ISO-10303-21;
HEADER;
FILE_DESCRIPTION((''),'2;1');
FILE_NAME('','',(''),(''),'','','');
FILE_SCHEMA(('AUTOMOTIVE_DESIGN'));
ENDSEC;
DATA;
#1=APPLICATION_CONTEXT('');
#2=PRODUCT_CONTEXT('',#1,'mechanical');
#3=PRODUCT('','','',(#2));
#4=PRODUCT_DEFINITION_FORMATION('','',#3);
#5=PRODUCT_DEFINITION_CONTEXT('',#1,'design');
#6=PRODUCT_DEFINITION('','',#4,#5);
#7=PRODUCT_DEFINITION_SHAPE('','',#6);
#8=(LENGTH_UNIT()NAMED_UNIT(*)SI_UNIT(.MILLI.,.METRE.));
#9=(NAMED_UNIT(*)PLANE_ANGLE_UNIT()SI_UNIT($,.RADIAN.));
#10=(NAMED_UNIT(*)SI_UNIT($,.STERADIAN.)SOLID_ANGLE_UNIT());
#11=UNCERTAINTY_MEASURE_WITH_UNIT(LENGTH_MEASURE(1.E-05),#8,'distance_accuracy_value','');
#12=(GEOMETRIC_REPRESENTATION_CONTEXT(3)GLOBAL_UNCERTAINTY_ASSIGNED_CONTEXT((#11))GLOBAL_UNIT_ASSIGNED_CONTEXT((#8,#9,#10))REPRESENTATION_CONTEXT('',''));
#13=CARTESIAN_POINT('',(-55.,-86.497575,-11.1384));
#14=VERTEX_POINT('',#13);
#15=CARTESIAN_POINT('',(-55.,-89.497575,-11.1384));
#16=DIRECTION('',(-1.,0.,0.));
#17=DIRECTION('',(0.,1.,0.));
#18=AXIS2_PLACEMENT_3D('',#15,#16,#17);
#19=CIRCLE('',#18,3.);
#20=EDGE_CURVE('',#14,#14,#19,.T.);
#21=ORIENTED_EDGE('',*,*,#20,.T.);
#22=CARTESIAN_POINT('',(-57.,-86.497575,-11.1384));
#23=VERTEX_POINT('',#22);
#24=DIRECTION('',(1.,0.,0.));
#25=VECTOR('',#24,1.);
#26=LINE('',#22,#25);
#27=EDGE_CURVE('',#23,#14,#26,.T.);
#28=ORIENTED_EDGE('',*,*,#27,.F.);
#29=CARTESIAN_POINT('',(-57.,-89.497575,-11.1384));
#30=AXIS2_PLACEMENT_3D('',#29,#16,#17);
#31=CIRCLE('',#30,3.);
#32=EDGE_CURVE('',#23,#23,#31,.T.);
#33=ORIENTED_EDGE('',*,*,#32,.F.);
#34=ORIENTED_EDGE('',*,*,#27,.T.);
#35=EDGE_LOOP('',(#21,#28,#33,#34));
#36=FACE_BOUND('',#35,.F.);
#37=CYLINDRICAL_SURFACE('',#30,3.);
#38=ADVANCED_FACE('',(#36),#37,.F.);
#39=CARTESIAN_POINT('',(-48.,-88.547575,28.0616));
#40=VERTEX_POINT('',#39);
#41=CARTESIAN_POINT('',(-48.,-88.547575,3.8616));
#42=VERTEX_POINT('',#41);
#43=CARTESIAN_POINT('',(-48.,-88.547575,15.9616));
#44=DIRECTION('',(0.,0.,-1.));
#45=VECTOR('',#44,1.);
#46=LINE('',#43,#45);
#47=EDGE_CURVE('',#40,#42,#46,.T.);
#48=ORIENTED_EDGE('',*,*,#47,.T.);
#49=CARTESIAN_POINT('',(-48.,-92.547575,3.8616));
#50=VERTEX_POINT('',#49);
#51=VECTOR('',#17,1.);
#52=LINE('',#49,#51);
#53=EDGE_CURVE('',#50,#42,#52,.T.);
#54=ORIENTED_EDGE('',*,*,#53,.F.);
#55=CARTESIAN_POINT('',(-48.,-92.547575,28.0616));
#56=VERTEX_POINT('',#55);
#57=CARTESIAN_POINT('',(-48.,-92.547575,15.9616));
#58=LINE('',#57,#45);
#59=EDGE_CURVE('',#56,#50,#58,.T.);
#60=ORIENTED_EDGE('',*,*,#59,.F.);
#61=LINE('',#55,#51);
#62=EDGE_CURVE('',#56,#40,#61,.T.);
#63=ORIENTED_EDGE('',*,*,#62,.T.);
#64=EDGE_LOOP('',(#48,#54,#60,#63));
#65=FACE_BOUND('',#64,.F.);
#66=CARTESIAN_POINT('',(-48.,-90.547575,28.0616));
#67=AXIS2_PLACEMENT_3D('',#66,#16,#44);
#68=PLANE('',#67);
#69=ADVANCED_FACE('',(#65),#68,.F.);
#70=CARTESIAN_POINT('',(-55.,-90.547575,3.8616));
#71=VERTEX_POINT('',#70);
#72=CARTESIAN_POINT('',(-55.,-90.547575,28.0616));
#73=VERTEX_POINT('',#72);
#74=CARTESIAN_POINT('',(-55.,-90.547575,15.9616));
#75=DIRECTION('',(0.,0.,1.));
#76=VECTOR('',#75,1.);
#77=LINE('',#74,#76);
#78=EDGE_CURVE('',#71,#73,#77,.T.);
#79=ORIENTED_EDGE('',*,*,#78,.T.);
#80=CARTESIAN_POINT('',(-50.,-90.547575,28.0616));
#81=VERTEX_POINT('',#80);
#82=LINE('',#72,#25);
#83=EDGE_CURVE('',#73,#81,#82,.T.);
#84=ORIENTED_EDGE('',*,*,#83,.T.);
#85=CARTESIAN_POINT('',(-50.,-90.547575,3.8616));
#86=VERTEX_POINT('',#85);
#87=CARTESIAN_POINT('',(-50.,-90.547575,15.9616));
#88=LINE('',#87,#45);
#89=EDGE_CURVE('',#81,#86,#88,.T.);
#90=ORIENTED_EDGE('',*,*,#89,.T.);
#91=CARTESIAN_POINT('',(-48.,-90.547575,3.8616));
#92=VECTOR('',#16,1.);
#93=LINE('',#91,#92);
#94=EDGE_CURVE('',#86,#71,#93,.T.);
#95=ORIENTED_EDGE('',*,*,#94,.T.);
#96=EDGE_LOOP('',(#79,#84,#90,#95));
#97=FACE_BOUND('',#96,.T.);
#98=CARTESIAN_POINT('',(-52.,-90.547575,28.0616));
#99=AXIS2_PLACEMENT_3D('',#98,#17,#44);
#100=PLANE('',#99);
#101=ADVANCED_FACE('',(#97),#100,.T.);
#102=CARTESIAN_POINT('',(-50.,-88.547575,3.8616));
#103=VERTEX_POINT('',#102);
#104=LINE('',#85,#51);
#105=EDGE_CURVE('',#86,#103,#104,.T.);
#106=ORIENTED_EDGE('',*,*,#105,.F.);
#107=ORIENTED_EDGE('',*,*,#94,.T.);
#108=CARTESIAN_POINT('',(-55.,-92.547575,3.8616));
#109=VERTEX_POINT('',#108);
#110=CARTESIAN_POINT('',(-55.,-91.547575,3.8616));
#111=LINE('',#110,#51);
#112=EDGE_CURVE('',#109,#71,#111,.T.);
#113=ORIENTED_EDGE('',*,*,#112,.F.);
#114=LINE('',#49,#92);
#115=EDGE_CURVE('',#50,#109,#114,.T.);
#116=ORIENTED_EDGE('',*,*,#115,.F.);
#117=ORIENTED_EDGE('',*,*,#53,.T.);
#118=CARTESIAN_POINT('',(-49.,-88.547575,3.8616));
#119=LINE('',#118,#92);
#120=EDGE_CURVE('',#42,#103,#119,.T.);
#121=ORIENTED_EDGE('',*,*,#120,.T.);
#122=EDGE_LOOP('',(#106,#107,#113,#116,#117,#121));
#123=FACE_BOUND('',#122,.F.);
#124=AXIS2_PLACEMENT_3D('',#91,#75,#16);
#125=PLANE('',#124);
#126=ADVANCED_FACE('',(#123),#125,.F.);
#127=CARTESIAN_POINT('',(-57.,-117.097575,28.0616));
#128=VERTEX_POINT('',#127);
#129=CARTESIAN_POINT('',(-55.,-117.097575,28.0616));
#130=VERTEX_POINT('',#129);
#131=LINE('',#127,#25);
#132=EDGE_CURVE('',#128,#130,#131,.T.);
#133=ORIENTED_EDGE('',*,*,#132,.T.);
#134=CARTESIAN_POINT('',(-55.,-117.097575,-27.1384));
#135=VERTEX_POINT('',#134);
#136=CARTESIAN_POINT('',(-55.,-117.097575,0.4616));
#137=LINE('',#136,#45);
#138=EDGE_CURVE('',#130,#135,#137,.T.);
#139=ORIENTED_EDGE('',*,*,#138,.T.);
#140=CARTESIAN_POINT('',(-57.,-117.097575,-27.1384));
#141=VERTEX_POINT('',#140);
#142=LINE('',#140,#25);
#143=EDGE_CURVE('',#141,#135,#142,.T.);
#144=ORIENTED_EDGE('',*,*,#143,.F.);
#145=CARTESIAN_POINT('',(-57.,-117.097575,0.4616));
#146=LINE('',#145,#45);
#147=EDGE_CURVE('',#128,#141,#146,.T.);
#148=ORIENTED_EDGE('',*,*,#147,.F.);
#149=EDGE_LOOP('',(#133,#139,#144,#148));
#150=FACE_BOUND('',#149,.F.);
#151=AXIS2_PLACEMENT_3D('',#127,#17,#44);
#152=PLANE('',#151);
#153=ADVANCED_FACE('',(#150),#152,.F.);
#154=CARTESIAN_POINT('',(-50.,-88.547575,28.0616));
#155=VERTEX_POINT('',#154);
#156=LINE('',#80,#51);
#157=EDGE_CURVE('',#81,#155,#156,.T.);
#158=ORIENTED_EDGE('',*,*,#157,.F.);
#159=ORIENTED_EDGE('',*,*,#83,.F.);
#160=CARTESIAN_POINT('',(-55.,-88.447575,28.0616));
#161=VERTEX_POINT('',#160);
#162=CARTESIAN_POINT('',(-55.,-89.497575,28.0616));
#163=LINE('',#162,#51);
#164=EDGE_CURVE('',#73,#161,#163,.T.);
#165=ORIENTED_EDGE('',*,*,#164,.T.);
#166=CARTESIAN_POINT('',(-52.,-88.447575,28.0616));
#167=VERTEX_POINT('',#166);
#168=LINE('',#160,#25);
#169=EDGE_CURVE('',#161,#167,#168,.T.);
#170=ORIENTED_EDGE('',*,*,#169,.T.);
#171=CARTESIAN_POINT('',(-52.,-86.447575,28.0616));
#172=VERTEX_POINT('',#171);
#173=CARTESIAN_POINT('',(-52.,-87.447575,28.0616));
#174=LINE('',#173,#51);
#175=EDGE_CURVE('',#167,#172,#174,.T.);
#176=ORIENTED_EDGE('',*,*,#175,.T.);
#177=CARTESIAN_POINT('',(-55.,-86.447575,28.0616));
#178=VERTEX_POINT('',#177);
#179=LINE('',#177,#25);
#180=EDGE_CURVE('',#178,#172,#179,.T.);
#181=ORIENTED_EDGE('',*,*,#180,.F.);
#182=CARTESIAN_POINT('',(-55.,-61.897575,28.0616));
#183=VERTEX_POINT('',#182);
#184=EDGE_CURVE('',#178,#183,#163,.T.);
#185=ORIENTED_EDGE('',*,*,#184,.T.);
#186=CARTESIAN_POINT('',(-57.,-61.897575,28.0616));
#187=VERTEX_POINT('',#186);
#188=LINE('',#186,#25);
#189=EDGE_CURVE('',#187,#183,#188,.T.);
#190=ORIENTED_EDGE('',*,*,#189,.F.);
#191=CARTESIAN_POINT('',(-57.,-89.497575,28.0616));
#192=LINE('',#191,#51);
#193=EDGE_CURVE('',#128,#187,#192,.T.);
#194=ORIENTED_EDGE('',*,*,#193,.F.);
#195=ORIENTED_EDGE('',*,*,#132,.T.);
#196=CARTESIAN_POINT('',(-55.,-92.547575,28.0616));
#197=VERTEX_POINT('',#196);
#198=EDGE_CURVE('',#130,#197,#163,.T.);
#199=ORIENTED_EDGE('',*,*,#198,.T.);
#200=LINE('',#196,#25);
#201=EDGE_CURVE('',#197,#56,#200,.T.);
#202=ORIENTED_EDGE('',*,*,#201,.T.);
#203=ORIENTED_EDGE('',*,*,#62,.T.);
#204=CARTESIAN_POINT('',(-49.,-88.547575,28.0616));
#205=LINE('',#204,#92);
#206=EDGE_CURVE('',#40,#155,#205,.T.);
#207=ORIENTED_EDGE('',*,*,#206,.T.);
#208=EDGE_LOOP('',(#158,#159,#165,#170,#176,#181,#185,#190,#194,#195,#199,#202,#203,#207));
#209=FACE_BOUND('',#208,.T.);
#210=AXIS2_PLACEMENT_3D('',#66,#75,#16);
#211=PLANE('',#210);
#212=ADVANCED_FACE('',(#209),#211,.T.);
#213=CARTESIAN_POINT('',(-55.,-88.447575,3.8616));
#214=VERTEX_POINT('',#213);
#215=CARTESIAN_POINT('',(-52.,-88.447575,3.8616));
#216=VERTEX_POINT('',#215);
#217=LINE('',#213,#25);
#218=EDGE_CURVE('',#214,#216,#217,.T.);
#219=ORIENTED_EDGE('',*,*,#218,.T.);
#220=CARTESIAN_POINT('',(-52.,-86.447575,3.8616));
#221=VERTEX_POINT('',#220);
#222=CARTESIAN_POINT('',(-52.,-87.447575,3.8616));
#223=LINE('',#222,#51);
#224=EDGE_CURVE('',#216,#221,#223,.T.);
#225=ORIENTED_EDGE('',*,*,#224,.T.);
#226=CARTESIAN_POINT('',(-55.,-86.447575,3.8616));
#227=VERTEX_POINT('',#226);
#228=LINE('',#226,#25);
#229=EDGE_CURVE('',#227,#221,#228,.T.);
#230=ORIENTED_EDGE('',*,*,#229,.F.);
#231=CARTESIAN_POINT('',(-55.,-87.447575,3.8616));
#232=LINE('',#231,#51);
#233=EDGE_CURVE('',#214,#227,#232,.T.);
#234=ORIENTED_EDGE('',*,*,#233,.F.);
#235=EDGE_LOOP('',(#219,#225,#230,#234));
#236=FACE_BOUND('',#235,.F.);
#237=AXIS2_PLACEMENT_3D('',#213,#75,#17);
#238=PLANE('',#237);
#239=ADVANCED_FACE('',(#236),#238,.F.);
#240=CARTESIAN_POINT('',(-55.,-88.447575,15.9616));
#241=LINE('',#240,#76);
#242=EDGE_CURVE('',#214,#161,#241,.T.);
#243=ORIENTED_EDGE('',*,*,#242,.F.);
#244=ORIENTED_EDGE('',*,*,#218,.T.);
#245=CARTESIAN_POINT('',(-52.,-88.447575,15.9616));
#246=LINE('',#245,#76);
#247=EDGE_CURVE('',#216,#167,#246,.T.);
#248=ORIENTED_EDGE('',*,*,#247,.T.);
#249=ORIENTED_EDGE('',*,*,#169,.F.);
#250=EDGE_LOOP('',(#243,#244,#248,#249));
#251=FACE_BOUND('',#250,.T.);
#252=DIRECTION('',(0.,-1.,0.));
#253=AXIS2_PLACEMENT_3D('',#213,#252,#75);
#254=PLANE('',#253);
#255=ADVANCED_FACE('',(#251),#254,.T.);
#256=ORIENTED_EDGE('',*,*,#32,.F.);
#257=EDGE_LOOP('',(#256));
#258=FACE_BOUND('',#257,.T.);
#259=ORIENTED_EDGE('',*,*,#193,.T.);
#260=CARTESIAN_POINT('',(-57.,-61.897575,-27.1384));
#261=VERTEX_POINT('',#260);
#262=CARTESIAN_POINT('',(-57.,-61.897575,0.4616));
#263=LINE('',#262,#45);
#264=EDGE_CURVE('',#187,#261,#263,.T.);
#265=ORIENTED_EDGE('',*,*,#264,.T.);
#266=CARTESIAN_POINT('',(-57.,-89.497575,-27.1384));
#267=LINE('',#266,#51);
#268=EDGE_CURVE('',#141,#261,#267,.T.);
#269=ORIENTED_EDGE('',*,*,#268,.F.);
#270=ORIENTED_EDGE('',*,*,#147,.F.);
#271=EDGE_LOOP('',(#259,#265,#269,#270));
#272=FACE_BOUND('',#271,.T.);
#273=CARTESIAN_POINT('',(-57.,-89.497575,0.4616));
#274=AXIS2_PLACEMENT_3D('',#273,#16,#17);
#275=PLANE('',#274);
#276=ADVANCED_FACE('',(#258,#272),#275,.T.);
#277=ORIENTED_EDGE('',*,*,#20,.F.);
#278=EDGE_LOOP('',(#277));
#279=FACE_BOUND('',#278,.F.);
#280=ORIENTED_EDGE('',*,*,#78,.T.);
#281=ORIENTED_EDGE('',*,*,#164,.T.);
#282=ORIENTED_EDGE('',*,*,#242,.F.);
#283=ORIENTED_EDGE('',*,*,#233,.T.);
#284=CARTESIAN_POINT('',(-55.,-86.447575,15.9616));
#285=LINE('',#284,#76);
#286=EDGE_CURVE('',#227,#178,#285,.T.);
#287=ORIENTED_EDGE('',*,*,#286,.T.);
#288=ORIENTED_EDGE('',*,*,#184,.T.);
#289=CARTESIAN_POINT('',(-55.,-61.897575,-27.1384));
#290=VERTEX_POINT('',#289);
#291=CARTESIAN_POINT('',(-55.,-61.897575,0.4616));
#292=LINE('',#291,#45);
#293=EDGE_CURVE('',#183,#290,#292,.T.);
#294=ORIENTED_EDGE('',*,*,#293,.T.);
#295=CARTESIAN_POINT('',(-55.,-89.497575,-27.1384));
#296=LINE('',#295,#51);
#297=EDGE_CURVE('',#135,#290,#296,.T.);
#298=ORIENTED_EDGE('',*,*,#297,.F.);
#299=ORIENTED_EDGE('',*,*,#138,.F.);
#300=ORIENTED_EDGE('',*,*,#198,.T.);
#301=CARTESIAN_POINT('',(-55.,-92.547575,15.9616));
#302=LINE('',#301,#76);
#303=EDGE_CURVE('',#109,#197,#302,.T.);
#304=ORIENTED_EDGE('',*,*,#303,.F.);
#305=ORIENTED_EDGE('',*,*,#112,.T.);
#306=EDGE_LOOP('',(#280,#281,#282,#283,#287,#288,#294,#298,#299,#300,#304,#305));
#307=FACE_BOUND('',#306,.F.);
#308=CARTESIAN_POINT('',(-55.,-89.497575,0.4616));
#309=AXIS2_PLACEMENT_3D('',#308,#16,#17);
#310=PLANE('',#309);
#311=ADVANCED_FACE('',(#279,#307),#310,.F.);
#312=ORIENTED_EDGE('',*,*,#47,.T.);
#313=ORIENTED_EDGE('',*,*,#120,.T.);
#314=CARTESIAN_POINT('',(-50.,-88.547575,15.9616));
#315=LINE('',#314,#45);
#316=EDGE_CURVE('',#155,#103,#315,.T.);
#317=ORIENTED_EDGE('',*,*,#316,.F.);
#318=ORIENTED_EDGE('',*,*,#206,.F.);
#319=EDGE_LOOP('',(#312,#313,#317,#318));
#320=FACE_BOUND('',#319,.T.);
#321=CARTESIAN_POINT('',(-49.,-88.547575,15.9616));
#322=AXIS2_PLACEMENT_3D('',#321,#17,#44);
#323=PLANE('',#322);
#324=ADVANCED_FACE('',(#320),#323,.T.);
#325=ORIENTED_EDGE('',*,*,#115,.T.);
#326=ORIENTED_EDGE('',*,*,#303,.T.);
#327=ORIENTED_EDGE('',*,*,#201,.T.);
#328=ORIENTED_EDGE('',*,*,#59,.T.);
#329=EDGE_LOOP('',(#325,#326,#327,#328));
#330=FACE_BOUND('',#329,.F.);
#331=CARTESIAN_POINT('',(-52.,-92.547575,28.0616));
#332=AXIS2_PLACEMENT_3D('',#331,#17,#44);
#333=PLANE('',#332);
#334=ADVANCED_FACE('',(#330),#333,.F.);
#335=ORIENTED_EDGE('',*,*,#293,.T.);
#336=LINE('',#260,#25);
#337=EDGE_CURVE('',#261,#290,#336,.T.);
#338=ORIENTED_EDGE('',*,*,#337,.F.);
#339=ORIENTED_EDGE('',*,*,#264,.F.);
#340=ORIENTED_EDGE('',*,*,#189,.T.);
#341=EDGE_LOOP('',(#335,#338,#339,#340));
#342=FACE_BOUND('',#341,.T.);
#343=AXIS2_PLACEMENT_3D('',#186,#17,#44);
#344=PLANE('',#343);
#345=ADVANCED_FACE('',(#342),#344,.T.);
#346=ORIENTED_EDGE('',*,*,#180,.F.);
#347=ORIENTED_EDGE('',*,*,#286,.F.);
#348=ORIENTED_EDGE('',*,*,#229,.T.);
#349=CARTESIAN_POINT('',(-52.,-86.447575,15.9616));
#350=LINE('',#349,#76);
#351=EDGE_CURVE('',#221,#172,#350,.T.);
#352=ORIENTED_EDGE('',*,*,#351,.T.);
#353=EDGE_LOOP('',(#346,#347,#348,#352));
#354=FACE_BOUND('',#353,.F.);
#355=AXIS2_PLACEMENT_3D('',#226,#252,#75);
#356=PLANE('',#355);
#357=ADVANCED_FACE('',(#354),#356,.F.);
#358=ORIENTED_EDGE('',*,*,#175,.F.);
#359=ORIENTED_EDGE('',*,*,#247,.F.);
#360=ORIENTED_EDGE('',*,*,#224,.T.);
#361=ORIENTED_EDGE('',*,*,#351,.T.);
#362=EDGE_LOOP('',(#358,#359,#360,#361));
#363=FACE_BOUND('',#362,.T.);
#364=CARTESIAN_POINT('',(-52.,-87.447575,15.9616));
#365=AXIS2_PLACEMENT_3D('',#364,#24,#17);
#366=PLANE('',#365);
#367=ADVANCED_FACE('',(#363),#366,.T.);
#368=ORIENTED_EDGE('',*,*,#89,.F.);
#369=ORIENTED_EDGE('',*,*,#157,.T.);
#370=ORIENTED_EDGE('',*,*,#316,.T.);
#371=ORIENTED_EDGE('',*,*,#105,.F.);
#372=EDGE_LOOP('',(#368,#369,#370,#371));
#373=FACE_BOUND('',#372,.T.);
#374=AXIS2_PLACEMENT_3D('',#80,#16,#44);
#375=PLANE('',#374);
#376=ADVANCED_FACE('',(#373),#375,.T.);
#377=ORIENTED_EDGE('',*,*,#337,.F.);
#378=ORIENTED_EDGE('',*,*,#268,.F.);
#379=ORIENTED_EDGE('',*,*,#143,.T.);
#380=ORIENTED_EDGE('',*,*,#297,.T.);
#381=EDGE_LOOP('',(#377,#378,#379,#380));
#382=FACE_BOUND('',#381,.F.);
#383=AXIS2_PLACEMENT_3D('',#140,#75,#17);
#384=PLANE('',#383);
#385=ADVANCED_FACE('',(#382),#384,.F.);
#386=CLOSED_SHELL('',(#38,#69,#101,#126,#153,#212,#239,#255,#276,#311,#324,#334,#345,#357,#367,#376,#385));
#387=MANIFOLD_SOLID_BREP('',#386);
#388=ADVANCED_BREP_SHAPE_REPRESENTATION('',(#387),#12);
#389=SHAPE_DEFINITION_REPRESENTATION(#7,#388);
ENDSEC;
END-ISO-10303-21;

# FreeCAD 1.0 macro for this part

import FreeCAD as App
import Part
import Sketcher

V = App.Vector
Q = App.Units.Quantity

doc = App.newDocument("Part")
body = doc.addObject("PartDesign::Body", "Body")

# Sketch on YZ plane
sketch1 = doc.addObject("Sketcher::SketchObject", "Sketch")
body.addObject(sketch1)
sketch1.AttachmentSupport = (doc.YZ_Plane, [""])
sketch1.MapMode = "FlatFace"
sketch1.AttachmentOffset = App.Placement(V(0, 0, -57), App.Rotation())
sketch1.addGeometry(Part.LineSegment(V(-117.1, -27.1, 0), V(-117.1, 28.1, 0)), False)
sketch1.addGeometry(Part.LineSegment(V(-117.1, 28.1, 0), V(-61.9, 28.1, 0)), False)
sketch1.addGeometry(Part.LineSegment(V(-61.9, 28.1, 0), V(-61.9, -27.1, 0)), False)
sketch1.addGeometry(Part.LineSegment(V(-61.9, -27.1, 0), V(-117.1, -27.1, 0)), False)
sketch1.addGeometry(Part.Circle(V(-89.5, -11.1, 0), V(0, 0, 1), 3), False)
sketch1.addConstraint(Sketcher.Constraint("Coincident", 0, 2, 1, 1))
sketch1.addConstraint(Sketcher.Constraint("Coincident", 1, 2, 2, 1))
sketch1.addConstraint(Sketcher.Constraint("Coincident", 2, 2, 3, 1))
sketch1.addConstraint(Sketcher.Constraint("Coincident", 3, 2, 0, 1))
sketch1.addConstraint(Sketcher.Constraint("Vertical", 0))
sketch1.addConstraint(Sketcher.Constraint("Horizontal", 1))
sketch1.addConstraint(Sketcher.Constraint("Vertical", 2))
sketch1.addConstraint(Sketcher.Constraint("Horizontal", 3))
sketch1.addConstraint(Sketcher.Constraint("Equal", 3, 0))
sketch1.addConstraint(Sketcher.Constraint("Diameter", 4, Q("6 mm")))
sketch1.addConstraint(Sketcher.Constraint("DistanceX", 1, 1, 1, 2, Q("55.2 mm")))
sketch1.addConstraint(Sketcher.Constraint("DistanceY", 2, 2, 4, 3, Q("16 mm")))
sketch1.addConstraint(Sketcher.Constraint("DistanceX", 0, 2, 4, 3, Q("27.6 mm")))
sketch1.addConstraint(Sketcher.Constraint("DistanceY", 4, 3, -1, 1, Q("11.1384 mm")))
sketch1.addConstraint(Sketcher.Constraint("DistanceX", 4, 3, -1, 1, Q("89.497575 mm")))
pad1 = doc.addObject("PartDesign::Pad", "Pad")
body.addObject(pad1)
pad1.Profile = sketch1
pad1.Length = 2

# Sketch on YZ plane
sketch2 = doc.addObject("Sketcher::SketchObject", "Sketch001")
body.addObject(sketch2)
sketch2.AttachmentSupport = (doc.YZ_Plane, [""])
sketch2.MapMode = "FlatFace"
sketch2.AttachmentOffset = App.Placement(V(0, 0, -55), App.Rotation())
sketch2.addGeometry(Part.LineSegment(V(-88.4, 28.1, 0), V(-88.4, 3.9, 0)), False)
sketch2.addGeometry(Part.LineSegment(V(-88.4, 3.9, 0), V(-86.4, 3.9, 0)), False)
sketch2.addGeometry(Part.LineSegment(V(-86.4, 3.9, 0), V(-86.4, 28.1, 0)), False)
sketch2.addGeometry(Part.LineSegment(V(-86.4, 28.1, 0), V(-88.4, 28.1, 0)), False)
sketch2.addGeometry(Part.LineSegment(V(-92.5, 28.1, 0), V(-92.5, 3.9, 0)), False)
sketch2.addGeometry(Part.LineSegment(V(-92.5, 3.9, 0), V(-90.5, 3.9, 0)), False)
sketch2.addGeometry(Part.LineSegment(V(-90.5, 3.9, 0), V(-90.5, 28.1, 0)), False)
sketch2.addGeometry(Part.LineSegment(V(-90.5, 28.1, 0), V(-92.5, 28.1, 0)), False)
sketch2.addConstraint(Sketcher.Constraint("Coincident", 0, 2, 1, 1))
sketch2.addConstraint(Sketcher.Constraint("Coincident", 1, 2, 2, 1))
sketch2.addConstraint(Sketcher.Constraint("Coincident", 2, 2, 3, 1))
sketch2.addConstraint(Sketcher.Constraint("Coincident", 3, 2, 0, 1))
sketch2.addConstraint(Sketcher.Constraint("Coincident", 4, 2, 5, 1))
sketch2.addConstraint(Sketcher.Constraint("Coincident", 5, 2, 6, 1))
sketch2.addConstraint(Sketcher.Constraint("Coincident", 6, 2, 7, 1))
sketch2.addConstraint(Sketcher.Constraint("Coincident", 7, 2, 4, 1))
sketch2.addConstraint(Sketcher.Constraint("Vertical", 0))
sketch2.addConstraint(Sketcher.Constraint("Horizontal", 1))
sketch2.addConstraint(Sketcher.Constraint("Vertical", 2))
sketch2.addConstraint(Sketcher.Constraint("Horizontal", 3))
sketch2.addConstraint(Sketcher.Constraint("Vertical", 4))
sketch2.addConstraint(Sketcher.Constraint("Horizontal", 5))
sketch2.addConstraint(Sketcher.Constraint("Vertical", 6))
sketch2.addConstraint(Sketcher.Constraint("Horizontal", 7))
sketch2.addConstraint(Sketcher.Constraint("Horizontal", 1, 2, 4, 2))
sketch2.addConstraint(Sketcher.Constraint("Horizontal", 3, 2, 6, 2))
sketch2.addConstraint(Sketcher.Constraint("Equal", 3, 5))
sketch2.addConstraint(Sketcher.Constraint("DistanceX", 1, 1, 1, 2, Q("2 mm")))
sketch2.addConstraint(Sketcher.Constraint("DistanceY", 0, 2, 0, 1, Q("24.2 mm")))
sketch2.addConstraint(Sketcher.Constraint("DistanceX", 4, 2, 0, 2, Q("4.1 mm")))
sketch2.addConstraint(Sketcher.Constraint("DistanceY", -1, 1, 0, 2, Q("3.8616 mm")))
sketch2.addConstraint(Sketcher.Constraint("DistanceX", 0, 2, -1, 1, Q("88.447575 mm")))
pad2 = doc.addObject("PartDesign::Pad", "Pad001")
body.addObject(pad2)
pad2.Profile = sketch2
pad2.Length = 3

# Sketch on YZ plane
sketch3 = doc.addObject("Sketcher::SketchObject", "Sketch002")
body.addObject(sketch3)
sketch3.AttachmentSupport = (doc.YZ_Plane, [""])
sketch3.MapMode = "FlatFace"
sketch3.AttachmentOffset = App.Placement(V(0, 0, -52), App.Rotation())
sketch3.addGeometry(Part.LineSegment(V(-90.5, 3.9, 0), V(-90.5, 28.1, 0)), False)
sketch3.addGeometry(Part.LineSegment(V(-90.5, 28.1, 0), V(-92.5, 28.1, 0)), False)
sketch3.addGeometry(Part.LineSegment(V(-92.5, 28.1, 0), V(-92.5, 3.9, 0)), False)
sketch3.addGeometry(Part.LineSegment(V(-92.5, 3.9, 0), V(-90.5, 3.9, 0)), False)
sketch3.addConstraint(Sketcher.Constraint("Coincident", 0, 2, 1, 1))
sketch3.addConstraint(Sketcher.Constraint("Coincident", 1, 2, 2, 1))
sketch3.addConstraint(Sketcher.Constraint("Coincident", 2, 2, 3, 1))
sketch3.addConstraint(Sketcher.Constraint("Coincident", 3, 2, 0, 1))
sketch3.addConstraint(Sketcher.Constraint("Vertical", 0))
sketch3.addConstraint(Sketcher.Constraint("Horizontal", 1))
sketch3.addConstraint(Sketcher.Constraint("Vertical", 2))
sketch3.addConstraint(Sketcher.Constraint("Horizontal", 3))
sketch3.addConstraint(Sketcher.Constraint("DistanceX", 1, 2, 1, 1, Q("2 mm")))
sketch3.addConstraint(Sketcher.Constraint("DistanceY", 0, 1, 0, 2, Q("24.2 mm")))
sketch3.addConstraint(Sketcher.Constraint("DistanceY", -1, 1, 0, 2, Q("28.0616 mm")))
sketch3.addConstraint(Sketcher.Constraint("DistanceX", 0, 2, -1, 1, Q("90.547575 mm")))
pad3 = doc.addObject("PartDesign::Pad", "Pad002")
body.addObject(pad3)
pad3.Profile = sketch3
pad3.Length = 4

# Sketch on XZ plane
sketch4 = doc.addObject("Sketcher::SketchObject", "Sketch003")
body.addObject(sketch4)
sketch4.AttachmentSupport = (doc.XZ_Plane, [""])
sketch4.MapMode = "FlatFace"
sketch4.AttachmentOffset = App.Placement(V(0, 0, 90.547575), App.Rotation())
sketch4.addGeometry(Part.LineSegment(V(-50, 28.1, 0), V(-48, 28.1, 0)), False)
sketch4.addGeometry(Part.LineSegment(V(-48, 28.1, 0), V(-48, 3.9, 0)), False)
sketch4.addGeometry(Part.LineSegment(V(-48, 3.9, 0), V(-50, 3.9, 0)), False)
sketch4.addGeometry(Part.LineSegment(V(-50, 3.9, 0), V(-50, 28.1, 0)), False)
sketch4.addConstraint(Sketcher.Constraint("Coincident", 0, 2, 1, 1))
sketch4.addConstraint(Sketcher.Constraint("Coincident", 1, 2, 2, 1))
sketch4.addConstraint(Sketcher.Constraint("Coincident", 2, 2, 3, 1))
sketch4.addConstraint(Sketcher.Constraint("Coincident", 3, 2, 0, 1))
sketch4.addConstraint(Sketcher.Constraint("Horizontal", 0))
sketch4.addConstraint(Sketcher.Constraint("Vertical", 1))
sketch4.addConstraint(Sketcher.Constraint("Horizontal", 2))
sketch4.addConstraint(Sketcher.Constraint("Vertical", 3))
sketch4.addConstraint(Sketcher.Constraint("DistanceX", 0, 1, 0, 2, Q("2 mm")))
sketch4.addConstraint(Sketcher.Constraint("DistanceY", 1, 2, 1, 1, Q("24.2 mm")))
sketch4.addConstraint(Sketcher.Constraint("DistanceX", 0, 2, -1, 1, Q("48 mm")))
sketch4.addConstraint(Sketcher.Constraint("DistanceY", -1, 1, 0, 2, Q("28.0616 mm")))
pad4 = doc.addObject("PartDesign::Pad", "Pad003")
body.addObject(pad4)
pad4.Profile = sketch4
pad4.Length = 2
pad4.Reversed = True

doc.recompute()
